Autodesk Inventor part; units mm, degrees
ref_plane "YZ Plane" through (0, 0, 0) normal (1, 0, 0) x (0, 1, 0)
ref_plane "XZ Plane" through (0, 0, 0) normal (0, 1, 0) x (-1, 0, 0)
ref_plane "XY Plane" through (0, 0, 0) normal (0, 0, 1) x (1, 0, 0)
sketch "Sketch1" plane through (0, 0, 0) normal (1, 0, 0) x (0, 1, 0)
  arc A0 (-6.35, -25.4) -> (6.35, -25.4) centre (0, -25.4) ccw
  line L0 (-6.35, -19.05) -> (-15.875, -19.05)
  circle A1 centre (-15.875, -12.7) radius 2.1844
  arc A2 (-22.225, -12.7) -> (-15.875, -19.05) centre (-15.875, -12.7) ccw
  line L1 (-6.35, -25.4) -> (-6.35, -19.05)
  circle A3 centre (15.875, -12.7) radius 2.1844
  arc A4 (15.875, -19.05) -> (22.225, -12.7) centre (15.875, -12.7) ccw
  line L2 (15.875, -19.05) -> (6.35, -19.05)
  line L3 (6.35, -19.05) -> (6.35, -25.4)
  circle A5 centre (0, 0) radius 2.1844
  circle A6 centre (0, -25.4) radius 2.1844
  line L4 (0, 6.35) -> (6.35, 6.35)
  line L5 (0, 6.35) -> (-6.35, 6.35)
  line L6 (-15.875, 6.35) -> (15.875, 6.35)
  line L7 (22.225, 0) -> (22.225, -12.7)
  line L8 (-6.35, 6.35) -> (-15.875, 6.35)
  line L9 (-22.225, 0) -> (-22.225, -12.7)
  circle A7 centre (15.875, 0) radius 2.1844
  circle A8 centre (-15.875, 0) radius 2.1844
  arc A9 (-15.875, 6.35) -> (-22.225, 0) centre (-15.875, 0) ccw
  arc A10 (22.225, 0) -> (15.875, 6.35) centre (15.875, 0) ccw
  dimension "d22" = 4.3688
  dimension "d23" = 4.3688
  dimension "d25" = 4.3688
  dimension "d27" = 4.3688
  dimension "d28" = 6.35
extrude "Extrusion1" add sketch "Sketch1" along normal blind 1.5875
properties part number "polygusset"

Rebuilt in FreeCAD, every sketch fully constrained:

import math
import FreeCAD as App
import Part
import Sketcher
from FreeCAD import Vector
Q = App.Units.Quantity

doc = App.newDocument("Part")
body = doc.addObject("PartDesign::Body", "Body")

sketch1 = body.newObject("Sketcher::SketchObject", "Sketch")
sketch1.AttachmentSupport = (doc.getObject("YZ_Plane"), [""])
sketch1.MapMode = "FlatFace"
sketch1.addGeometry([
    Part.LineSegment(Vector(-6.3, -19.1, 0), Vector(-6.3, -25.4, 0)),
    Part.ArcOfCircle(Part.Circle(Vector(0, -25.4, 0), Vector(0, 0, 1), 6.3), math.radians(180), math.radians(360)),
    Part.LineSegment(Vector(6.3, -25.4, 0), Vector(6.3, -19.1, 0)),
    Part.LineSegment(Vector(6.3, -19.1, 0), Vector(15.9, -19.1, 0)),
    Part.ArcOfCircle(Part.Circle(Vector(15.9, -12.7, 0), Vector(0, 0, 1), 6.4), math.radians(-90), math.radians(0)),
    Part.LineSegment(Vector(22.2, -12.7, 0), Vector(22.2, 0, 0)),
    Part.ArcOfCircle(Part.Circle(Vector(15.9, 0, 0), Vector(0, 0, 1), 6.4), math.radians(0), math.radians(90)),
    Part.LineSegment(Vector(15.9, 6.3, 0), Vector(-15.9, 6.3, 0)),
    Part.ArcOfCircle(Part.Circle(Vector(-15.9, 0, 0), Vector(0, 0, 1), 6.3), math.radians(90), math.radians(180)),
    Part.LineSegment(Vector(-22.2, 0, 0), Vector(-22.2, -12.7, 0)),
    Part.ArcOfCircle(Part.Circle(Vector(-15.9, -12.7, 0), Vector(0, 0, 1), 6.4), math.radians(180), math.radians(270)),
    Part.LineSegment(Vector(-15.9, -19.1, 0), Vector(-6.3, -19.1, 0)),
    Part.Circle(Vector(0, -25.4, 0), Vector(0, 0, 1), 2.2),
    Part.Circle(Vector(-15.9, -12.7, 0), Vector(0, 0, 1), 2.2),
    Part.Circle(Vector(-15.9, 0, 0), Vector(0, 0, 1), 2.2),
    Part.Circle(Vector(15.9, -12.7, 0), Vector(0, 0, 1), 2.2),
    Part.Circle(Vector(0, 0, 0), Vector(0, 0, 1), 2.2),
    Part.Circle(Vector(15.9, 0, 0), Vector(0, 0, 1), 2.2),
], False)
sketch1.addConstraint([
    Sketcher.Constraint("Tangent", 0, 2, 1, 1),
    Sketcher.Constraint("Tangent", 1, 2, 2, 1),
    Sketcher.Constraint("Coincident", 2, 2, 3, 1),
    Sketcher.Constraint("Tangent", 3, 2, 4, 1),
    Sketcher.Constraint("Tangent", 4, 2, 5, 1),
    Sketcher.Constraint("Tangent", 5, 2, 6, 1),
    Sketcher.Constraint("Tangent", 6, 2, 7, 1),
    Sketcher.Constraint("Tangent", 7, 2, 8, 1),
    Sketcher.Constraint("Tangent", 8, 2, 9, 1),
    Sketcher.Constraint("Tangent", 9, 2, 10, 1),
    Sketcher.Constraint("Tangent", 10, 2, 11, 1),
    Sketcher.Constraint("Coincident", 11, 2, 0, 1),
    Sketcher.Constraint("Vertical", 0),
    Sketcher.Constraint("Vertical", 2),
    Sketcher.Constraint("Horizontal", 3),
    Sketcher.Constraint("Vertical", 5),
    Sketcher.Constraint("Horizontal", 7),
    Sketcher.Constraint("Vertical", 9),
    Sketcher.Constraint("Horizontal", 11),
    Sketcher.Constraint("Coincident", 16, 3, -1, 1),
    Sketcher.Constraint("Coincident", 12, 3, 1, 3),
    Sketcher.Constraint("Coincident", 13, 3, 10, 3),
    Sketcher.Constraint("Coincident", 14, 3, 8, 3),
    Sketcher.Constraint("Coincident", 15, 3, 4, 3),
    Sketcher.Constraint("Coincident", 17, 3, 6, 3),
    Sketcher.Constraint("Equal", 1, 4),
    Sketcher.Constraint("Equal", 4, 6),
    Sketcher.Constraint("Equal", 6, 8),
    Sketcher.Constraint("Equal", 8, 10),
    Sketcher.Constraint("Equal", 12, 13),
    Sketcher.Constraint("Equal", 13, 14),
    Sketcher.Constraint("Equal", 14, 15),
    Sketcher.Constraint("Equal", 15, 16),
    Sketcher.Constraint("Equal", 16, 17),
    Sketcher.Constraint("Symmetric", 6, 3, 8, 3, -1, 1),
    Sketcher.Constraint("Symmetric", 2, 2, 11, 2, -2),
    Sketcher.Constraint("Radius", 1, Q("0.25 in")),
    Sketcher.Constraint("Diameter", 12, Q("0.172 in")),
    Sketcher.Constraint("DistanceY", 0, 2, 0, 1, Q("0.25 in")),
    Sketcher.Constraint("DistanceY", 5, 1, 5, 2, Q("0.5 in")),
    Sketcher.Constraint("DistanceX", 7, 2, 7, 1, Q("1.25 in")),
])
pad1 = body.newObject("PartDesign::Pad", "Pad")
pad1.Profile = sketch1
pad1.Length = Q("0.0625 in")

doc.recompute()
